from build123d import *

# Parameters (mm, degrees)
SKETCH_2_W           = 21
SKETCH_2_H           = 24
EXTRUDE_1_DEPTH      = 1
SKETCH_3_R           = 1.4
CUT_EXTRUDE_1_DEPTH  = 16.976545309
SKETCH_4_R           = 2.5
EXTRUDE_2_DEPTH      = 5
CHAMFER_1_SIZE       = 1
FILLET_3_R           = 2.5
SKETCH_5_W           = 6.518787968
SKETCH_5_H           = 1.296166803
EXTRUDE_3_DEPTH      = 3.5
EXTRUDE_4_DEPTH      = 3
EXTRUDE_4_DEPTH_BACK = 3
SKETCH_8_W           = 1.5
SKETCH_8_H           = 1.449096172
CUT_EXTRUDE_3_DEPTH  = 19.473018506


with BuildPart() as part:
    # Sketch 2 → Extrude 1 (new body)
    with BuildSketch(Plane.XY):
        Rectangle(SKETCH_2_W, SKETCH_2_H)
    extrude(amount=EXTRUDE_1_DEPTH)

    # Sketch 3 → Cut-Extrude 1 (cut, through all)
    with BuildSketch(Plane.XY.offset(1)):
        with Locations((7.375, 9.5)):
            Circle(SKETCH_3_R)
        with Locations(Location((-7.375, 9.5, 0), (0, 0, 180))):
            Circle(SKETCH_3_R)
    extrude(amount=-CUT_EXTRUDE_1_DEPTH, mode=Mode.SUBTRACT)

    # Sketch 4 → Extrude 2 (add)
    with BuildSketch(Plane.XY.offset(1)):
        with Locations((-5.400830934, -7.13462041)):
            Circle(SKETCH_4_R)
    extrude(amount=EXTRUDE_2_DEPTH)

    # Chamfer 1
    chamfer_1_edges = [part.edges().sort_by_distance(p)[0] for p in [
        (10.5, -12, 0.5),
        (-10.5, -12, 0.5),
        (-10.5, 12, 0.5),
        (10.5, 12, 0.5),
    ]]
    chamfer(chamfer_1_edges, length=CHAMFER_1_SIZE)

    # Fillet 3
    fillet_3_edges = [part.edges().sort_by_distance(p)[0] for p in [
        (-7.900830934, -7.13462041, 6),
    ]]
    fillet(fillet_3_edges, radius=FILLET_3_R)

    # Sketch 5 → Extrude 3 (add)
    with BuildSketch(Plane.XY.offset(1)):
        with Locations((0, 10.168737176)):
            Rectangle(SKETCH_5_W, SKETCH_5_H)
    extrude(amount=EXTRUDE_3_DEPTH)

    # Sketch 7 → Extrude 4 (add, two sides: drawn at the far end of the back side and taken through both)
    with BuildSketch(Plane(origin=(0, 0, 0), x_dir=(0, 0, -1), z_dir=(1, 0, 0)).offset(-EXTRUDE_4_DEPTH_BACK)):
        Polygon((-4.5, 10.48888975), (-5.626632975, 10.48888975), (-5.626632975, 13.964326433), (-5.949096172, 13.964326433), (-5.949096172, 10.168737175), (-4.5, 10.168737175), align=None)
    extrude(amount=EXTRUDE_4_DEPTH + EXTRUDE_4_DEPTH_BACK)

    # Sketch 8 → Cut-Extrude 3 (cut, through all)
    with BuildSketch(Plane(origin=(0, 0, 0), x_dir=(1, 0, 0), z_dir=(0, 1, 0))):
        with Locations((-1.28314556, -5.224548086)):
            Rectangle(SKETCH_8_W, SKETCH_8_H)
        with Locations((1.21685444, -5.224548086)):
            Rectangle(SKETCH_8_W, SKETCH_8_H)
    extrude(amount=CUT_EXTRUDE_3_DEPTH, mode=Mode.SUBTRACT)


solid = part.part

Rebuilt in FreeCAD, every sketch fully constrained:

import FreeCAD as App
import Part
import Sketcher
from FreeCAD import Vector
Q = App.Units.Quantity


def edges_at(feature, points):
    """Names of the edges that pass closest to the given points."""
    edges = feature.Shape.Edges
    near = lambda p: min(range(len(edges)), key=lambda i: edges[i].distToShape(Part.Vertex(*p))[0])
    return sorted({f"Edge{near(p) + 1}" for p in points})

doc = App.newDocument("Part")
body = doc.addObject("PartDesign::Body", "Body")

sketch1 = doc.addObject("Sketcher::SketchObject", "Sketch")
body.addObject(sketch1)
sketch1.AttachmentSupport = (doc.XY_Plane, [""])
sketch1.MapMode = "FlatFace"
sketch1.addGeometry(Part.LineSegment(Vector(-10, 12, 0), Vector(-10, -12, 0)), False)
sketch1.addGeometry(Part.LineSegment(Vector(-10, -12, 0), Vector(10, -12, 0)), False)
sketch1.addGeometry(Part.LineSegment(Vector(10, -12, 0), Vector(10, 12, 0)), False)
sketch1.addGeometry(Part.LineSegment(Vector(10, 12, 0), Vector(-10, 12, 0)), False)
sketch1.addConstraint(Sketcher.Constraint("Coincident", 0, 2, 1, 1))
sketch1.addConstraint(Sketcher.Constraint("Coincident", 1, 2, 2, 1))
sketch1.addConstraint(Sketcher.Constraint("Coincident", 2, 2, 3, 1))
sketch1.addConstraint(Sketcher.Constraint("Coincident", 3, 2, 0, 1))
sketch1.addConstraint(Sketcher.Constraint("Vertical", 0))
sketch1.addConstraint(Sketcher.Constraint("Horizontal", 1))
sketch1.addConstraint(Sketcher.Constraint("Vertical", 2))
sketch1.addConstraint(Sketcher.Constraint("Horizontal", 3))
sketch1.addConstraint(Sketcher.Constraint("Symmetric", 0, 2, 2, 2, -1, 1))
sketch1.addConstraint(Sketcher.Constraint("DistanceX", 1, 1, 1, 2, Q("21 mm")))
sketch1.addConstraint(Sketcher.Constraint("DistanceY", 0, 2, 0, 1, Q("24 mm")))
pad1 = doc.addObject("PartDesign::Pad", "Pad")
body.addObject(pad1)
pad1.Profile = sketch1
pad1.Length = 1

sketch2 = doc.addObject("Sketcher::SketchObject", "Sketch001")
body.addObject(sketch2)
sketch2.AttachmentSupport = (doc.XY_Plane, [""])
sketch2.MapMode = "FlatFace"
sketch2.AttachmentOffset = App.Placement(Vector(0, 0, 1), App.Rotation())
sketch2.addGeometry(Part.Circle(Vector(7.4, 9.5, 0), Vector(0, 0, 1), 1.4), False)
sketch2.addGeometry(Part.Circle(Vector(-7.4, 9.5, 0), Vector(0, 0, 1), 1.4), False)
sketch2.addConstraint(Sketcher.Constraint("Equal", 0, 1))
sketch2.addConstraint(Sketcher.Constraint("Symmetric", 0, 3, 1, 3, -2))
sketch2.addConstraint(Sketcher.Constraint("Diameter", 0, Q("2.8 mm")))
sketch2.addConstraint(Sketcher.Constraint("DistanceY", -1, 1, 0, 3, Q("9.5 mm")))
sketch2.addConstraint(Sketcher.Constraint("DistanceX", 1, 3, 0, 3, Q("14.75 mm")))
pocket1 = doc.addObject("PartDesign::Pocket", "Pocket")
body.addObject(pocket1)
pocket1.Profile = sketch2
pocket1.Type = "ThroughAll"

sketch3 = doc.addObject("Sketcher::SketchObject", "Sketch002")
body.addObject(sketch3)
sketch3.AttachmentSupport = (doc.XY_Plane, [""])
sketch3.MapMode = "FlatFace"
sketch3.AttachmentOffset = App.Placement(Vector(0, 0, 1), App.Rotation())
sketch3.addGeometry(Part.Circle(Vector(-5.4, -7.1, 0), Vector(0, 0, 1), 2.5), False)
sketch3.addConstraint(Sketcher.Constraint("Diameter", 0, Q("5 mm")))
sketch3.addConstraint(Sketcher.Constraint("DistanceX", 0, 3, -1, 1, Q("5.400831 mm")))
sketch3.addConstraint(Sketcher.Constraint("DistanceY", 0, 3, -1, 1, Q("7.13462 mm")))
pad2 = doc.addObject("PartDesign::Pad", "Pad001")
body.addObject(pad2)
pad2.Profile = sketch3
pad2.Length = 5
doc.recompute()

chamfer = doc.addObject("PartDesign::Chamfer", "Chamfer")
body.addObject(chamfer)
chamfer.Base = (pad2, edges_at(pad2, [
    (10.5, -12, 0.5),
    (-10.5, -12, 0.5),
    (-10.5, 12, 0.5),
    (10.5, 12, 0.5),
]))
chamfer.Size = 1
doc.recompute()

fillet = doc.addObject("PartDesign::Fillet", "Fillet")
body.addObject(fillet)
fillet.Base = (chamfer, edges_at(chamfer, [(-7.901, -7.135, 6)]))
fillet.Radius = 2.5

sketch4 = doc.addObject("Sketcher::SketchObject", "Sketch003")
body.addObject(sketch4)
sketch4.AttachmentSupport = (doc.XY_Plane, [""])
sketch4.MapMode = "FlatFace"
sketch4.AttachmentOffset = App.Placement(Vector(0, 0, 1), App.Rotation())
sketch4.addGeometry(Part.LineSegment(Vector(-3.3, 10.8, 0), Vector(-3.3, 9.5, 0)), False)
sketch4.addGeometry(Part.LineSegment(Vector(-3.3, 9.5, 0), Vector(3.3, 9.5, 0)), False)
sketch4.addGeometry(Part.LineSegment(Vector(3.3, 9.5, 0), Vector(3.3, 10.8, 0)), False)
sketch4.addGeometry(Part.LineSegment(Vector(3.3, 10.8, 0), Vector(-3.3, 10.8, 0)), False)
sketch4.addConstraint(Sketcher.Constraint("Coincident", 0, 2, 1, 1))
sketch4.addConstraint(Sketcher.Constraint("Coincident", 1, 2, 2, 1))
sketch4.addConstraint(Sketcher.Constraint("Coincident", 2, 2, 3, 1))
sketch4.addConstraint(Sketcher.Constraint("Coincident", 3, 2, 0, 1))
sketch4.addConstraint(Sketcher.Constraint("Vertical", 0))
sketch4.addConstraint(Sketcher.Constraint("Horizontal", 1))
sketch4.addConstraint(Sketcher.Constraint("Vertical", 2))
sketch4.addConstraint(Sketcher.Constraint("Horizontal", 3))
sketch4.addConstraint(Sketcher.Constraint("DistanceX", 1, 1, 1, 2, Q("6.518788 mm")))
sketch4.addConstraint(Sketcher.Constraint("DistanceY", 0, 2, 0, 1, Q("1.296167 mm")))
sketch4.addConstraint(Sketcher.Constraint("DistanceY", -1, 1, 2, 2, Q("10.816821 mm")))
sketch4.addConstraint(Sketcher.Constraint("DistanceX", 0, 2, -1, 1, Q("3.259394 mm")))
pad3 = doc.addObject("PartDesign::Pad", "Pad002")
body.addObject(pad3)
pad3.Profile = sketch4
pad3.Length = 3.5

sketch5 = doc.addObject("Sketcher::SketchObject", "Sketch004")
body.addObject(sketch5)
sketch5.AttachmentSupport = (doc.YZ_Plane, [""])
sketch5.MapMode = "FlatFace"
sketch5.addGeometry(Part.LineSegment(Vector(10.49, 4.5, 0), Vector(10.49, 5.63, 0)), False)
sketch5.addGeometry(Part.LineSegment(Vector(10.49, 5.63, 0), Vector(13.96, 5.63, 0)), False)
sketch5.addGeometry(Part.LineSegment(Vector(13.96, 5.63, 0), Vector(13.96, 5.95, 0)), False)
sketch5.addGeometry(Part.LineSegment(Vector(13.96, 5.95, 0), Vector(10.17, 5.95, 0)), False)
sketch5.addGeometry(Part.LineSegment(Vector(10.17, 5.95, 0), Vector(10.17, 4.5, 0)), False)
sketch5.addGeometry(Part.LineSegment(Vector(10.17, 4.5, 0), Vector(10.49, 4.5, 0)), False)
sketch5.addConstraint(Sketcher.Constraint("Coincident", 0, 2, 1, 1))
sketch5.addConstraint(Sketcher.Constraint("Coincident", 1, 2, 2, 1))
sketch5.addConstraint(Sketcher.Constraint("Coincident", 2, 2, 3, 1))
sketch5.addConstraint(Sketcher.Constraint("Coincident", 3, 2, 4, 1))
sketch5.addConstraint(Sketcher.Constraint("Coincident", 4, 2, 5, 1))
sketch5.addConstraint(Sketcher.Constraint("Coincident", 5, 2, 0, 1))
sketch5.addConstraint(Sketcher.Constraint("Vertical", 0))
sketch5.addConstraint(Sketcher.Constraint("Horizontal", 1))
sketch5.addConstraint(Sketcher.Constraint("Vertical", 2))
sketch5.addConstraint(Sketcher.Constraint("Horizontal", 3))
sketch5.addConstraint(Sketcher.Constraint("Vertical", 4))
sketch5.addConstraint(Sketcher.Constraint("Horizontal", 5))
sketch5.addConstraint(Sketcher.Constraint("DistanceY", -1, 1, 4, 2, Q("4.5 mm")))
sketch5.addConstraint(Sketcher.Constraint("DistanceX", 3, 2, 3, 1, Q("3.795589 mm")))
sketch5.addConstraint(Sketcher.Constraint("DistanceX", 1, 1, 1, 2, Q("3.475437 mm")))
sketch5.addConstraint(Sketcher.Constraint("DistanceY", 0, 1, 0, 2, Q("1.126633 mm")))
sketch5.addConstraint(Sketcher.Constraint("DistanceY", 2, 1, 2, 2, Q("0.322463 mm")))
sketch5.addConstraint(Sketcher.Constraint("DistanceX", -1, 1, 0, 2, Q("10.48889 mm")))
pad4 = doc.addObject("PartDesign::Pad", "Pad003")
body.addObject(pad4)
pad4.Profile = sketch5
pad4.Type = "TwoLengths"
pad4.Length = 3
pad4.Length2 = 3

sketch6 = doc.addObject("Sketcher::SketchObject", "Sketch005")
body.addObject(sketch6)
sketch6.AttachmentSupport = (doc.XZ_Plane, [""])
sketch6.MapMode = "FlatFace"
sketch6.addGeometry(Part.LineSegment(Vector(-2, 4.5, 0), Vector(-2, 5.9, 0)), False)
sketch6.addGeometry(Part.LineSegment(Vector(-2, 5.9, 0), Vector(-0.5, 5.9, 0)), False)
sketch6.addGeometry(Part.LineSegment(Vector(-0.5, 5.9, 0), Vector(-0.5, 4.5, 0)), False)
sketch6.addGeometry(Part.LineSegment(Vector(-0.5, 4.5, 0), Vector(-2, 4.5, 0)), False)
sketch6.addGeometry(Part.LineSegment(Vector(0.5, 4.5, 0), Vector(0.5, 5.9, 0)), False)
sketch6.addGeometry(Part.LineSegment(Vector(0.5, 5.9, 0), Vector(2, 5.9, 0)), False)
sketch6.addGeometry(Part.LineSegment(Vector(2, 5.9, 0), Vector(2, 4.5, 0)), False)
sketch6.addGeometry(Part.LineSegment(Vector(2, 4.5, 0), Vector(0.5, 4.5, 0)), False)
sketch6.addConstraint(Sketcher.Constraint("Coincident", 0, 2, 1, 1))
sketch6.addConstraint(Sketcher.Constraint("Coincident", 1, 2, 2, 1))
sketch6.addConstraint(Sketcher.Constraint("Coincident", 2, 2, 3, 1))
sketch6.addConstraint(Sketcher.Constraint("Coincident", 3, 2, 0, 1))
sketch6.addConstraint(Sketcher.Constraint("Coincident", 4, 2, 5, 1))
sketch6.addConstraint(Sketcher.Constraint("Coincident", 5, 2, 6, 1))
sketch6.addConstraint(Sketcher.Constraint("Coincident", 6, 2, 7, 1))
sketch6.addConstraint(Sketcher.Constraint("Coincident", 7, 2, 4, 1))
sketch6.addConstraint(Sketcher.Constraint("Vertical", 0))
sketch6.addConstraint(Sketcher.Constraint("Horizontal", 1))
sketch6.addConstraint(Sketcher.Constraint("Vertical", 2))
sketch6.addConstraint(Sketcher.Constraint("Horizontal", 3))
sketch6.addConstraint(Sketcher.Constraint("Vertical", 4))
sketch6.addConstraint(Sketcher.Constraint("Horizontal", 5))
sketch6.addConstraint(Sketcher.Constraint("Vertical", 6))
sketch6.addConstraint(Sketcher.Constraint("Horizontal", 7))
sketch6.addConstraint(Sketcher.Constraint("Horizontal", 1, 2, 4, 2))
sketch6.addConstraint(Sketcher.Constraint("Horizontal", 3, 2, 6, 2))
sketch6.addConstraint(Sketcher.Constraint("Equal", 3, 5))
sketch6.addConstraint(Sketcher.Constraint("DistanceX", 1, 1, 1, 2, Q("1.5 mm")))
sketch6.addConstraint(Sketcher.Constraint("DistanceX", 1, 2, 4, 2, Q("1 mm")))
sketch6.addConstraint(Sketcher.Constraint("DistanceY", -1, 1, 2, 2, Q("4.5 mm")))
sketch6.addConstraint(Sketcher.Constraint("DistanceY", 0, 1, 0, 2, Q("1.449096 mm")))
sketch6.addConstraint(Sketcher.Constraint("DistanceX", 0, 2, -1, 1, Q("2.033146 mm")))
pocket2 = doc.addObject("PartDesign::Pocket", "Pocket001")
body.addObject(pocket2)
pocket2.Profile = sketch6
pocket2.Type = "ThroughAll"

doc.recompute()
